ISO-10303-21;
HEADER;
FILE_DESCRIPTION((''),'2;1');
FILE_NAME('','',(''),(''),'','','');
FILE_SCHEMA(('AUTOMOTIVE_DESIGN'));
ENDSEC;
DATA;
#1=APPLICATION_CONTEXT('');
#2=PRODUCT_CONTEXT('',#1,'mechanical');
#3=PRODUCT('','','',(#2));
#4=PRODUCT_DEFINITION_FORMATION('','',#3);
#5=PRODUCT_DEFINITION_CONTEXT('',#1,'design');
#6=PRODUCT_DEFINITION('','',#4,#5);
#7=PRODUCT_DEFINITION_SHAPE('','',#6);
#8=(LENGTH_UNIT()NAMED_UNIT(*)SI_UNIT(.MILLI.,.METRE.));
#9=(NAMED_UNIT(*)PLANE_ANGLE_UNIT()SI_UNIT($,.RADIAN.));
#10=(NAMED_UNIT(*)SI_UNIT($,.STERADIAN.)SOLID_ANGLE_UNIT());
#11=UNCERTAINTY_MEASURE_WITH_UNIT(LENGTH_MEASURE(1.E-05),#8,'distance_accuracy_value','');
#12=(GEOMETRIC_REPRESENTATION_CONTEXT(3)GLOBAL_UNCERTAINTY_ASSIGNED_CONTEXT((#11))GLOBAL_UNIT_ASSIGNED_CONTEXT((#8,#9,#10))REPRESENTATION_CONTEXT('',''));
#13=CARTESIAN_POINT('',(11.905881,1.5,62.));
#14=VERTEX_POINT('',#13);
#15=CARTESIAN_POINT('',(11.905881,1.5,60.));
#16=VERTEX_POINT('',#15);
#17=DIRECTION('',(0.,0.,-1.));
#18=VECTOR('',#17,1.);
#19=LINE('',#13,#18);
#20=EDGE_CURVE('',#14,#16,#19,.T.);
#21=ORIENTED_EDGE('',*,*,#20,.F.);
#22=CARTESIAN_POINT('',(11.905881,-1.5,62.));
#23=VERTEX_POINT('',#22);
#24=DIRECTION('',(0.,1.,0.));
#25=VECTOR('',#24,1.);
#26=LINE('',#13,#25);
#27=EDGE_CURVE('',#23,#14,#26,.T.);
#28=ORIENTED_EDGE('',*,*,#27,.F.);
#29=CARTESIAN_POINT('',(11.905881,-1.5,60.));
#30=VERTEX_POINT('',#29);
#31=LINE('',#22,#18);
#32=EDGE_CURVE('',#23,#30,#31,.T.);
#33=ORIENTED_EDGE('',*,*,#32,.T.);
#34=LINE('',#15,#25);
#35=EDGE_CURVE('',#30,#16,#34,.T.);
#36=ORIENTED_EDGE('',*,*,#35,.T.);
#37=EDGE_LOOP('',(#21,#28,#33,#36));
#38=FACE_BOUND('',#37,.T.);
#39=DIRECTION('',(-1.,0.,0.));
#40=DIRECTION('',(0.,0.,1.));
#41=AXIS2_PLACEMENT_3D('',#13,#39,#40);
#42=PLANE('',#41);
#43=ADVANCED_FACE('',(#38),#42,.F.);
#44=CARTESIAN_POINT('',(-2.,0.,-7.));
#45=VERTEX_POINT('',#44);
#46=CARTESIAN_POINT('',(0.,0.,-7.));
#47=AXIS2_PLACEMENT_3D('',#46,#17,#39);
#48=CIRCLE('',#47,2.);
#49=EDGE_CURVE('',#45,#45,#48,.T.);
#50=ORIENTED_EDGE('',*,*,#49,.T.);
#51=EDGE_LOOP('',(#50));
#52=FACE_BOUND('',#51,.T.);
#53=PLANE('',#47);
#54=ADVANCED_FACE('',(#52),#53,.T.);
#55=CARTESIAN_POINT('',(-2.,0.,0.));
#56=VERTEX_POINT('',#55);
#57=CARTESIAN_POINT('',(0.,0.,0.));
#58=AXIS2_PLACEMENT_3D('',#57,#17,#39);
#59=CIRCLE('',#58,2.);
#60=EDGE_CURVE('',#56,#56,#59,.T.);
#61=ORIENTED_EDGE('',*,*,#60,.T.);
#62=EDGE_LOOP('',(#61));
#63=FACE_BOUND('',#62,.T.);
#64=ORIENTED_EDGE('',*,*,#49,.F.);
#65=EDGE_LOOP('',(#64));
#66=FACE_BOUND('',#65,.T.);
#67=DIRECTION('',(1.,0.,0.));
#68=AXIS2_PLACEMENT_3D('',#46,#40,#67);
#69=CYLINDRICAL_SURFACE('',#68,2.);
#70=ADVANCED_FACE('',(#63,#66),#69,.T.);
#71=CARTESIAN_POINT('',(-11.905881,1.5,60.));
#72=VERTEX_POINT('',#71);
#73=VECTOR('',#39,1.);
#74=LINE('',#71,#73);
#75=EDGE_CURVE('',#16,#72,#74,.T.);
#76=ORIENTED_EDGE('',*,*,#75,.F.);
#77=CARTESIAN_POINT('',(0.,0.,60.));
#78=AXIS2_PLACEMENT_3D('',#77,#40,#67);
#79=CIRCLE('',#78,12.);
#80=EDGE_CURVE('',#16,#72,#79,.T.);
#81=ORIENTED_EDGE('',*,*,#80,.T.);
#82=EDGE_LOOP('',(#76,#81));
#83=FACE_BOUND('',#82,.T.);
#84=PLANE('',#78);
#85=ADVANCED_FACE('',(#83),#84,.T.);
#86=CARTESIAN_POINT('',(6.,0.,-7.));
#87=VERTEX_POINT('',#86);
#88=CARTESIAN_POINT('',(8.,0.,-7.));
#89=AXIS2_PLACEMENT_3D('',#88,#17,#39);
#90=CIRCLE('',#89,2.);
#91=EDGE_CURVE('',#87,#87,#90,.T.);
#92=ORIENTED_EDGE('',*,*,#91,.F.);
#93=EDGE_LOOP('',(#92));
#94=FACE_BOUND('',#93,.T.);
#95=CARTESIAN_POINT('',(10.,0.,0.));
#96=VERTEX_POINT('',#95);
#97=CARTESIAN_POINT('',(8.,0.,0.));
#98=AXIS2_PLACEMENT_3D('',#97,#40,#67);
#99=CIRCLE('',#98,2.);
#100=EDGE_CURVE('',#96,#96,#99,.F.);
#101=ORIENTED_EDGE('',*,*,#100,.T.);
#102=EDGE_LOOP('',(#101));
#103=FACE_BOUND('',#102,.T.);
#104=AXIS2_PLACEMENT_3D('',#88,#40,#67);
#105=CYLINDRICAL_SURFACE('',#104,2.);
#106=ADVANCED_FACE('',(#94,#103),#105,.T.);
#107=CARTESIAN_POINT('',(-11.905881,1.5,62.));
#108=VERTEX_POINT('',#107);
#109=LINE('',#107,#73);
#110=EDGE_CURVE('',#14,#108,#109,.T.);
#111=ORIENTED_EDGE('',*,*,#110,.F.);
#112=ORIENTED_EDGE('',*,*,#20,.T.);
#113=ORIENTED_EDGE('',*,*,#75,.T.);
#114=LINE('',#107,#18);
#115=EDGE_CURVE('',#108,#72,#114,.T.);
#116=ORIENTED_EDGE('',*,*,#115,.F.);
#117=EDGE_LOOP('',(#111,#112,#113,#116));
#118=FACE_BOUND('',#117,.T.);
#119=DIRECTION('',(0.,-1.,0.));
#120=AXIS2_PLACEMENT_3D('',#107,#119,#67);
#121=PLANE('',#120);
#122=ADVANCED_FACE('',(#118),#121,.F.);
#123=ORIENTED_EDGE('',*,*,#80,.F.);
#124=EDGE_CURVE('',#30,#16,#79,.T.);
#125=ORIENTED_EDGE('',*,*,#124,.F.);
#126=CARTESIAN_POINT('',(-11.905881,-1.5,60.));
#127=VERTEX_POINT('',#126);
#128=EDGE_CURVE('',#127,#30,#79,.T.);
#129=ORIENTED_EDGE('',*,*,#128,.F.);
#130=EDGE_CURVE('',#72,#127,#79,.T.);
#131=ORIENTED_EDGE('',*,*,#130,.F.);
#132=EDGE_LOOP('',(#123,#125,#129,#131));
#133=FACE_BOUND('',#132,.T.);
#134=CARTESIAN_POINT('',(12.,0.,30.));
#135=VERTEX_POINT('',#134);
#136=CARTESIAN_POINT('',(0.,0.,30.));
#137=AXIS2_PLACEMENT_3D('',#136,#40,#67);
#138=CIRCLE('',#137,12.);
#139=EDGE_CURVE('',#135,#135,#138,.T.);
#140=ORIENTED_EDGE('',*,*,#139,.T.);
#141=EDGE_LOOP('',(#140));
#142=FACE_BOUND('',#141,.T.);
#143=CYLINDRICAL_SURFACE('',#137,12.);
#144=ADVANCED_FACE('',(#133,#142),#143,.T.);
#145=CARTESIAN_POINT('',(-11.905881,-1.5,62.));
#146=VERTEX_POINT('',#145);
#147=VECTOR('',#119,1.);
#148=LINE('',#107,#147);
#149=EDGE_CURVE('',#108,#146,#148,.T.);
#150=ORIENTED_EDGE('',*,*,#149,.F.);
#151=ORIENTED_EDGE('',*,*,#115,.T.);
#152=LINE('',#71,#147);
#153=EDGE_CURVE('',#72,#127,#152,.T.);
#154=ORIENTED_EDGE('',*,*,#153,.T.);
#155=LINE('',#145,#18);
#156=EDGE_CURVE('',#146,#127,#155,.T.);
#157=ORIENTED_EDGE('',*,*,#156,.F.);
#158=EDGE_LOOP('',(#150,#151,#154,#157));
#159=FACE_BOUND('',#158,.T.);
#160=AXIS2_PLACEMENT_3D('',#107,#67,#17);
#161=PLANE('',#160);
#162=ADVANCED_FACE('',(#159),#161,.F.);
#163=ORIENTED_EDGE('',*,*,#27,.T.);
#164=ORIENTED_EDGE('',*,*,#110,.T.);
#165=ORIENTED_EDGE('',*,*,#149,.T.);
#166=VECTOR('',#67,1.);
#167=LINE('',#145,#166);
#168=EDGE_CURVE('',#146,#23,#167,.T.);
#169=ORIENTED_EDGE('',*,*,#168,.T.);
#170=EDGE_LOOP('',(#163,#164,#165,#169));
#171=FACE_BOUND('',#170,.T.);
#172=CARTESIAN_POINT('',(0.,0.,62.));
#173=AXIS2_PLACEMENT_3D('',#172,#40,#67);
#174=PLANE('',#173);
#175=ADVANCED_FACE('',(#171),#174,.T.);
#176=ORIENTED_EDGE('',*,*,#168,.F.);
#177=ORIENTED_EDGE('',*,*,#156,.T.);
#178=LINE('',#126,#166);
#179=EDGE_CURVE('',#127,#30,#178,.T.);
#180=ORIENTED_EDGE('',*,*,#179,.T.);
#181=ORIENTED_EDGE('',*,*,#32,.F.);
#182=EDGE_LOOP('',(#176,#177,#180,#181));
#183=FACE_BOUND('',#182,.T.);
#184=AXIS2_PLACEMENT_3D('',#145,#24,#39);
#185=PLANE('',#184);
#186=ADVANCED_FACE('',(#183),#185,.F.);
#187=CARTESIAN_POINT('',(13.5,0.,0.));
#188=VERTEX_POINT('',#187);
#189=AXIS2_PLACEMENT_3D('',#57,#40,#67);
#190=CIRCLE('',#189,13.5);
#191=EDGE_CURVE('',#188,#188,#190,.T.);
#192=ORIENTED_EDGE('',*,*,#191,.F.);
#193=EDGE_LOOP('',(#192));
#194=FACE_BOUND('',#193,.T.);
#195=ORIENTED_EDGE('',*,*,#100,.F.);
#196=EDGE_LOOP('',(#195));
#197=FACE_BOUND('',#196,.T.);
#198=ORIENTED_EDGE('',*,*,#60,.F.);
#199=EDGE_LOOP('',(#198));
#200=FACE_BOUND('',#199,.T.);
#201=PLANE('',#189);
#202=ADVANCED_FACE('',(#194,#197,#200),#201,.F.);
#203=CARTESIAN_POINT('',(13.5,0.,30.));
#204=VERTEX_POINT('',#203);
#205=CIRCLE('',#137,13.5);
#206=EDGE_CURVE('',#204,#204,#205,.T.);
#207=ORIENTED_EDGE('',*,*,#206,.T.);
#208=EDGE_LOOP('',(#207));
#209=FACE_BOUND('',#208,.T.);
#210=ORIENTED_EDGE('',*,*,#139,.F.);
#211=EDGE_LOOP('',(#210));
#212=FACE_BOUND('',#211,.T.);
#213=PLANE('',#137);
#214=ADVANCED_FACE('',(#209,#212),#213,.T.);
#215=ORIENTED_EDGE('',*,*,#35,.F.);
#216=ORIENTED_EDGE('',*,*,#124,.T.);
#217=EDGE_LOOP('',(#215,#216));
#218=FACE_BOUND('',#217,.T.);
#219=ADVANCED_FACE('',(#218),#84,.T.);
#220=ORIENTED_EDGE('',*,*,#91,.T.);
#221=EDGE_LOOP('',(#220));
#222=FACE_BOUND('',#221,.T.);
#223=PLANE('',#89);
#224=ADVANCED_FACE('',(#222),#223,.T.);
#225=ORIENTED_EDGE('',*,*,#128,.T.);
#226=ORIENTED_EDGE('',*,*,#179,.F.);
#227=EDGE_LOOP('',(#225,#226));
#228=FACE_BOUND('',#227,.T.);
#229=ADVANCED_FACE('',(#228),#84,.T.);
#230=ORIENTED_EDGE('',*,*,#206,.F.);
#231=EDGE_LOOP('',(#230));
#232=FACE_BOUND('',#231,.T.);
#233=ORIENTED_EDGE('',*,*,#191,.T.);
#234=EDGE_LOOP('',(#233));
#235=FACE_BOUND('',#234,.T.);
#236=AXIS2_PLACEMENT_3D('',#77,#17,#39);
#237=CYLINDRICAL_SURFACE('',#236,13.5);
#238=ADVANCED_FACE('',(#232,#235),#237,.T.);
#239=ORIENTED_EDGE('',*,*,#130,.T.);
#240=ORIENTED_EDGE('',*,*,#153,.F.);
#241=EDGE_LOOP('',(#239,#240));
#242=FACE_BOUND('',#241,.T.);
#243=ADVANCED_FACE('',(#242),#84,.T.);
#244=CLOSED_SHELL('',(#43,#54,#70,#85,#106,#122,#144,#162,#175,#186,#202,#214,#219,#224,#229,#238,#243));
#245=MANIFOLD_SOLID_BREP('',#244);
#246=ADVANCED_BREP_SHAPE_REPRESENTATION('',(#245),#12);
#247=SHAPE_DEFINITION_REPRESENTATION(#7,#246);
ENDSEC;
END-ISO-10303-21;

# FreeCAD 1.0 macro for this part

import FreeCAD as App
import Part
import Sketcher
Q = App.Units.Quantity


def add_polygon(sketch, points):
    """Adds a closed chain of lines whose ends are joined by coincident constraints."""
    first, n = sketch.GeometryCount, len(points)
    for a, b in zip(points, points[1:] + points[:1]):
        sketch.addGeometry(Part.LineSegment(App.Vector(*a, 0), App.Vector(*b, 0)), False)
    for i in range(n):
        sketch.addConstraint(Sketcher.Constraint("Coincident", first + i, 2, first + (i + 1) % n, 1))

doc = App.newDocument("Part")
body = doc.addObject("PartDesign::Body", "Body")

# Sketch on XY plane
sketch1 = body.newObject("Sketcher::SketchObject", "Sketch")
sketch1.AttachmentSupport = (doc.getObject("XY_Plane"), [""])
sketch1.MapMode = "FlatFace"
sketch1.addGeometry(Part.Circle(App.Vector(0, 0, 0), App.Vector(0, 0, 1), 14), False)
sketch1.addConstraint(Sketcher.Constraint("Coincident", 0, 3, -1, 1))
sketch1.addConstraint(Sketcher.Constraint("Diameter", 0, Q("27 mm")))
pad1 = body.newObject("PartDesign::Pad", "Pad")
pad1.Profile = sketch1
pad1.Length = 60

# Sketch on XY plane
sketch2 = body.newObject("Sketcher::SketchObject", "Sketch001")
sketch2.AttachmentSupport = (doc.getObject("XY_Plane"), [""])
sketch2.MapMode = "FlatFace"
sketch2.AttachmentOffset = App.Placement(App.Vector(0, 0, 30), App.Rotation())
sketch2.addGeometry(Part.Circle(App.Vector(0, 0, 0), App.Vector(0, 0, 1), 14), False)
sketch2.addGeometry(Part.Circle(App.Vector(0, 0, 0), App.Vector(0, 0, 1), 12), False)
sketch2.addConstraint(Sketcher.Constraint("Coincident", 0, 3, -1, 1))
sketch2.addConstraint(Sketcher.Constraint("Coincident", 1, 3, -1, 1))
sketch2.addConstraint(Sketcher.Constraint("Diameter", 0, Q("27 mm")))
sketch2.addConstraint(Sketcher.Constraint("Diameter", 1, Q("24 mm")))
pocket1 = body.newObject("PartDesign::Pocket", "Pocket")
pocket1.Profile = sketch2
pocket1.Length = 30
pocket1.Reversed = True

# Sketch on XY plane
sketch3 = body.newObject("Sketcher::SketchObject", "Sketch002")
sketch3.AttachmentSupport = (doc.getObject("XY_Plane"), [""])
sketch3.MapMode = "FlatFace"
sketch3.addGeometry(Part.Circle(App.Vector(0, 0, 0), App.Vector(0, 0, 1), 2), False)
sketch3.addGeometry(Part.Circle(App.Vector(8, 0, 0), App.Vector(0, 0, 1), 2), False)
sketch3.addConstraint(Sketcher.Constraint("Coincident", 0, 3, -1, 1))
sketch3.addConstraint(Sketcher.Constraint("Equal", 0, 1))
sketch3.addConstraint(Sketcher.Constraint("PointOnObject", 1, 3, -1))
sketch3.addConstraint(Sketcher.Constraint("Diameter", 0, Q("4 mm")))
sketch3.addConstraint(Sketcher.Constraint("DistanceX", -1, 1, 1, 3, Q("8 mm")))
pad2 = body.newObject("PartDesign::Pad", "Pad001")
pad2.Profile = sketch3
pad2.Length = 7
pad2.Reversed = True

# Sketch on XY plane
sketch4 = body.newObject("Sketcher::SketchObject", "Sketch003")
sketch4.AttachmentSupport = (doc.getObject("XY_Plane"), [""])
sketch4.MapMode = "FlatFace"
sketch4.AttachmentOffset = App.Placement(App.Vector(0, 0, 60), App.Rotation())
add_polygon(sketch4, [(-11.9, 1.5), (-11.9, -1.5), (11.9, -1.5), (11.9, 1.5)])  # lines 0-3
sketch4.addConstraint(Sketcher.Constraint("Vertical", 0))
sketch4.addConstraint(Sketcher.Constraint("Horizontal", 1))
sketch4.addConstraint(Sketcher.Constraint("Vertical", 2))
sketch4.addConstraint(Sketcher.Constraint("Horizontal", 3))
sketch4.addConstraint(Sketcher.Constraint("Symmetric", 0, 2, 2, 2, -1, 1))
sketch4.addConstraint(Sketcher.Constraint("DistanceY", 0, 2, 0, 1, Q("3 mm")))
sketch4.addConstraint(Sketcher.Constraint("DistanceX", 1, 1, 1, 2, Q("23.811762 mm")))
pad3 = body.newObject("PartDesign::Pad", "Pad002")
pad3.Profile = sketch4
pad3.Length = 2

doc.recompute()
